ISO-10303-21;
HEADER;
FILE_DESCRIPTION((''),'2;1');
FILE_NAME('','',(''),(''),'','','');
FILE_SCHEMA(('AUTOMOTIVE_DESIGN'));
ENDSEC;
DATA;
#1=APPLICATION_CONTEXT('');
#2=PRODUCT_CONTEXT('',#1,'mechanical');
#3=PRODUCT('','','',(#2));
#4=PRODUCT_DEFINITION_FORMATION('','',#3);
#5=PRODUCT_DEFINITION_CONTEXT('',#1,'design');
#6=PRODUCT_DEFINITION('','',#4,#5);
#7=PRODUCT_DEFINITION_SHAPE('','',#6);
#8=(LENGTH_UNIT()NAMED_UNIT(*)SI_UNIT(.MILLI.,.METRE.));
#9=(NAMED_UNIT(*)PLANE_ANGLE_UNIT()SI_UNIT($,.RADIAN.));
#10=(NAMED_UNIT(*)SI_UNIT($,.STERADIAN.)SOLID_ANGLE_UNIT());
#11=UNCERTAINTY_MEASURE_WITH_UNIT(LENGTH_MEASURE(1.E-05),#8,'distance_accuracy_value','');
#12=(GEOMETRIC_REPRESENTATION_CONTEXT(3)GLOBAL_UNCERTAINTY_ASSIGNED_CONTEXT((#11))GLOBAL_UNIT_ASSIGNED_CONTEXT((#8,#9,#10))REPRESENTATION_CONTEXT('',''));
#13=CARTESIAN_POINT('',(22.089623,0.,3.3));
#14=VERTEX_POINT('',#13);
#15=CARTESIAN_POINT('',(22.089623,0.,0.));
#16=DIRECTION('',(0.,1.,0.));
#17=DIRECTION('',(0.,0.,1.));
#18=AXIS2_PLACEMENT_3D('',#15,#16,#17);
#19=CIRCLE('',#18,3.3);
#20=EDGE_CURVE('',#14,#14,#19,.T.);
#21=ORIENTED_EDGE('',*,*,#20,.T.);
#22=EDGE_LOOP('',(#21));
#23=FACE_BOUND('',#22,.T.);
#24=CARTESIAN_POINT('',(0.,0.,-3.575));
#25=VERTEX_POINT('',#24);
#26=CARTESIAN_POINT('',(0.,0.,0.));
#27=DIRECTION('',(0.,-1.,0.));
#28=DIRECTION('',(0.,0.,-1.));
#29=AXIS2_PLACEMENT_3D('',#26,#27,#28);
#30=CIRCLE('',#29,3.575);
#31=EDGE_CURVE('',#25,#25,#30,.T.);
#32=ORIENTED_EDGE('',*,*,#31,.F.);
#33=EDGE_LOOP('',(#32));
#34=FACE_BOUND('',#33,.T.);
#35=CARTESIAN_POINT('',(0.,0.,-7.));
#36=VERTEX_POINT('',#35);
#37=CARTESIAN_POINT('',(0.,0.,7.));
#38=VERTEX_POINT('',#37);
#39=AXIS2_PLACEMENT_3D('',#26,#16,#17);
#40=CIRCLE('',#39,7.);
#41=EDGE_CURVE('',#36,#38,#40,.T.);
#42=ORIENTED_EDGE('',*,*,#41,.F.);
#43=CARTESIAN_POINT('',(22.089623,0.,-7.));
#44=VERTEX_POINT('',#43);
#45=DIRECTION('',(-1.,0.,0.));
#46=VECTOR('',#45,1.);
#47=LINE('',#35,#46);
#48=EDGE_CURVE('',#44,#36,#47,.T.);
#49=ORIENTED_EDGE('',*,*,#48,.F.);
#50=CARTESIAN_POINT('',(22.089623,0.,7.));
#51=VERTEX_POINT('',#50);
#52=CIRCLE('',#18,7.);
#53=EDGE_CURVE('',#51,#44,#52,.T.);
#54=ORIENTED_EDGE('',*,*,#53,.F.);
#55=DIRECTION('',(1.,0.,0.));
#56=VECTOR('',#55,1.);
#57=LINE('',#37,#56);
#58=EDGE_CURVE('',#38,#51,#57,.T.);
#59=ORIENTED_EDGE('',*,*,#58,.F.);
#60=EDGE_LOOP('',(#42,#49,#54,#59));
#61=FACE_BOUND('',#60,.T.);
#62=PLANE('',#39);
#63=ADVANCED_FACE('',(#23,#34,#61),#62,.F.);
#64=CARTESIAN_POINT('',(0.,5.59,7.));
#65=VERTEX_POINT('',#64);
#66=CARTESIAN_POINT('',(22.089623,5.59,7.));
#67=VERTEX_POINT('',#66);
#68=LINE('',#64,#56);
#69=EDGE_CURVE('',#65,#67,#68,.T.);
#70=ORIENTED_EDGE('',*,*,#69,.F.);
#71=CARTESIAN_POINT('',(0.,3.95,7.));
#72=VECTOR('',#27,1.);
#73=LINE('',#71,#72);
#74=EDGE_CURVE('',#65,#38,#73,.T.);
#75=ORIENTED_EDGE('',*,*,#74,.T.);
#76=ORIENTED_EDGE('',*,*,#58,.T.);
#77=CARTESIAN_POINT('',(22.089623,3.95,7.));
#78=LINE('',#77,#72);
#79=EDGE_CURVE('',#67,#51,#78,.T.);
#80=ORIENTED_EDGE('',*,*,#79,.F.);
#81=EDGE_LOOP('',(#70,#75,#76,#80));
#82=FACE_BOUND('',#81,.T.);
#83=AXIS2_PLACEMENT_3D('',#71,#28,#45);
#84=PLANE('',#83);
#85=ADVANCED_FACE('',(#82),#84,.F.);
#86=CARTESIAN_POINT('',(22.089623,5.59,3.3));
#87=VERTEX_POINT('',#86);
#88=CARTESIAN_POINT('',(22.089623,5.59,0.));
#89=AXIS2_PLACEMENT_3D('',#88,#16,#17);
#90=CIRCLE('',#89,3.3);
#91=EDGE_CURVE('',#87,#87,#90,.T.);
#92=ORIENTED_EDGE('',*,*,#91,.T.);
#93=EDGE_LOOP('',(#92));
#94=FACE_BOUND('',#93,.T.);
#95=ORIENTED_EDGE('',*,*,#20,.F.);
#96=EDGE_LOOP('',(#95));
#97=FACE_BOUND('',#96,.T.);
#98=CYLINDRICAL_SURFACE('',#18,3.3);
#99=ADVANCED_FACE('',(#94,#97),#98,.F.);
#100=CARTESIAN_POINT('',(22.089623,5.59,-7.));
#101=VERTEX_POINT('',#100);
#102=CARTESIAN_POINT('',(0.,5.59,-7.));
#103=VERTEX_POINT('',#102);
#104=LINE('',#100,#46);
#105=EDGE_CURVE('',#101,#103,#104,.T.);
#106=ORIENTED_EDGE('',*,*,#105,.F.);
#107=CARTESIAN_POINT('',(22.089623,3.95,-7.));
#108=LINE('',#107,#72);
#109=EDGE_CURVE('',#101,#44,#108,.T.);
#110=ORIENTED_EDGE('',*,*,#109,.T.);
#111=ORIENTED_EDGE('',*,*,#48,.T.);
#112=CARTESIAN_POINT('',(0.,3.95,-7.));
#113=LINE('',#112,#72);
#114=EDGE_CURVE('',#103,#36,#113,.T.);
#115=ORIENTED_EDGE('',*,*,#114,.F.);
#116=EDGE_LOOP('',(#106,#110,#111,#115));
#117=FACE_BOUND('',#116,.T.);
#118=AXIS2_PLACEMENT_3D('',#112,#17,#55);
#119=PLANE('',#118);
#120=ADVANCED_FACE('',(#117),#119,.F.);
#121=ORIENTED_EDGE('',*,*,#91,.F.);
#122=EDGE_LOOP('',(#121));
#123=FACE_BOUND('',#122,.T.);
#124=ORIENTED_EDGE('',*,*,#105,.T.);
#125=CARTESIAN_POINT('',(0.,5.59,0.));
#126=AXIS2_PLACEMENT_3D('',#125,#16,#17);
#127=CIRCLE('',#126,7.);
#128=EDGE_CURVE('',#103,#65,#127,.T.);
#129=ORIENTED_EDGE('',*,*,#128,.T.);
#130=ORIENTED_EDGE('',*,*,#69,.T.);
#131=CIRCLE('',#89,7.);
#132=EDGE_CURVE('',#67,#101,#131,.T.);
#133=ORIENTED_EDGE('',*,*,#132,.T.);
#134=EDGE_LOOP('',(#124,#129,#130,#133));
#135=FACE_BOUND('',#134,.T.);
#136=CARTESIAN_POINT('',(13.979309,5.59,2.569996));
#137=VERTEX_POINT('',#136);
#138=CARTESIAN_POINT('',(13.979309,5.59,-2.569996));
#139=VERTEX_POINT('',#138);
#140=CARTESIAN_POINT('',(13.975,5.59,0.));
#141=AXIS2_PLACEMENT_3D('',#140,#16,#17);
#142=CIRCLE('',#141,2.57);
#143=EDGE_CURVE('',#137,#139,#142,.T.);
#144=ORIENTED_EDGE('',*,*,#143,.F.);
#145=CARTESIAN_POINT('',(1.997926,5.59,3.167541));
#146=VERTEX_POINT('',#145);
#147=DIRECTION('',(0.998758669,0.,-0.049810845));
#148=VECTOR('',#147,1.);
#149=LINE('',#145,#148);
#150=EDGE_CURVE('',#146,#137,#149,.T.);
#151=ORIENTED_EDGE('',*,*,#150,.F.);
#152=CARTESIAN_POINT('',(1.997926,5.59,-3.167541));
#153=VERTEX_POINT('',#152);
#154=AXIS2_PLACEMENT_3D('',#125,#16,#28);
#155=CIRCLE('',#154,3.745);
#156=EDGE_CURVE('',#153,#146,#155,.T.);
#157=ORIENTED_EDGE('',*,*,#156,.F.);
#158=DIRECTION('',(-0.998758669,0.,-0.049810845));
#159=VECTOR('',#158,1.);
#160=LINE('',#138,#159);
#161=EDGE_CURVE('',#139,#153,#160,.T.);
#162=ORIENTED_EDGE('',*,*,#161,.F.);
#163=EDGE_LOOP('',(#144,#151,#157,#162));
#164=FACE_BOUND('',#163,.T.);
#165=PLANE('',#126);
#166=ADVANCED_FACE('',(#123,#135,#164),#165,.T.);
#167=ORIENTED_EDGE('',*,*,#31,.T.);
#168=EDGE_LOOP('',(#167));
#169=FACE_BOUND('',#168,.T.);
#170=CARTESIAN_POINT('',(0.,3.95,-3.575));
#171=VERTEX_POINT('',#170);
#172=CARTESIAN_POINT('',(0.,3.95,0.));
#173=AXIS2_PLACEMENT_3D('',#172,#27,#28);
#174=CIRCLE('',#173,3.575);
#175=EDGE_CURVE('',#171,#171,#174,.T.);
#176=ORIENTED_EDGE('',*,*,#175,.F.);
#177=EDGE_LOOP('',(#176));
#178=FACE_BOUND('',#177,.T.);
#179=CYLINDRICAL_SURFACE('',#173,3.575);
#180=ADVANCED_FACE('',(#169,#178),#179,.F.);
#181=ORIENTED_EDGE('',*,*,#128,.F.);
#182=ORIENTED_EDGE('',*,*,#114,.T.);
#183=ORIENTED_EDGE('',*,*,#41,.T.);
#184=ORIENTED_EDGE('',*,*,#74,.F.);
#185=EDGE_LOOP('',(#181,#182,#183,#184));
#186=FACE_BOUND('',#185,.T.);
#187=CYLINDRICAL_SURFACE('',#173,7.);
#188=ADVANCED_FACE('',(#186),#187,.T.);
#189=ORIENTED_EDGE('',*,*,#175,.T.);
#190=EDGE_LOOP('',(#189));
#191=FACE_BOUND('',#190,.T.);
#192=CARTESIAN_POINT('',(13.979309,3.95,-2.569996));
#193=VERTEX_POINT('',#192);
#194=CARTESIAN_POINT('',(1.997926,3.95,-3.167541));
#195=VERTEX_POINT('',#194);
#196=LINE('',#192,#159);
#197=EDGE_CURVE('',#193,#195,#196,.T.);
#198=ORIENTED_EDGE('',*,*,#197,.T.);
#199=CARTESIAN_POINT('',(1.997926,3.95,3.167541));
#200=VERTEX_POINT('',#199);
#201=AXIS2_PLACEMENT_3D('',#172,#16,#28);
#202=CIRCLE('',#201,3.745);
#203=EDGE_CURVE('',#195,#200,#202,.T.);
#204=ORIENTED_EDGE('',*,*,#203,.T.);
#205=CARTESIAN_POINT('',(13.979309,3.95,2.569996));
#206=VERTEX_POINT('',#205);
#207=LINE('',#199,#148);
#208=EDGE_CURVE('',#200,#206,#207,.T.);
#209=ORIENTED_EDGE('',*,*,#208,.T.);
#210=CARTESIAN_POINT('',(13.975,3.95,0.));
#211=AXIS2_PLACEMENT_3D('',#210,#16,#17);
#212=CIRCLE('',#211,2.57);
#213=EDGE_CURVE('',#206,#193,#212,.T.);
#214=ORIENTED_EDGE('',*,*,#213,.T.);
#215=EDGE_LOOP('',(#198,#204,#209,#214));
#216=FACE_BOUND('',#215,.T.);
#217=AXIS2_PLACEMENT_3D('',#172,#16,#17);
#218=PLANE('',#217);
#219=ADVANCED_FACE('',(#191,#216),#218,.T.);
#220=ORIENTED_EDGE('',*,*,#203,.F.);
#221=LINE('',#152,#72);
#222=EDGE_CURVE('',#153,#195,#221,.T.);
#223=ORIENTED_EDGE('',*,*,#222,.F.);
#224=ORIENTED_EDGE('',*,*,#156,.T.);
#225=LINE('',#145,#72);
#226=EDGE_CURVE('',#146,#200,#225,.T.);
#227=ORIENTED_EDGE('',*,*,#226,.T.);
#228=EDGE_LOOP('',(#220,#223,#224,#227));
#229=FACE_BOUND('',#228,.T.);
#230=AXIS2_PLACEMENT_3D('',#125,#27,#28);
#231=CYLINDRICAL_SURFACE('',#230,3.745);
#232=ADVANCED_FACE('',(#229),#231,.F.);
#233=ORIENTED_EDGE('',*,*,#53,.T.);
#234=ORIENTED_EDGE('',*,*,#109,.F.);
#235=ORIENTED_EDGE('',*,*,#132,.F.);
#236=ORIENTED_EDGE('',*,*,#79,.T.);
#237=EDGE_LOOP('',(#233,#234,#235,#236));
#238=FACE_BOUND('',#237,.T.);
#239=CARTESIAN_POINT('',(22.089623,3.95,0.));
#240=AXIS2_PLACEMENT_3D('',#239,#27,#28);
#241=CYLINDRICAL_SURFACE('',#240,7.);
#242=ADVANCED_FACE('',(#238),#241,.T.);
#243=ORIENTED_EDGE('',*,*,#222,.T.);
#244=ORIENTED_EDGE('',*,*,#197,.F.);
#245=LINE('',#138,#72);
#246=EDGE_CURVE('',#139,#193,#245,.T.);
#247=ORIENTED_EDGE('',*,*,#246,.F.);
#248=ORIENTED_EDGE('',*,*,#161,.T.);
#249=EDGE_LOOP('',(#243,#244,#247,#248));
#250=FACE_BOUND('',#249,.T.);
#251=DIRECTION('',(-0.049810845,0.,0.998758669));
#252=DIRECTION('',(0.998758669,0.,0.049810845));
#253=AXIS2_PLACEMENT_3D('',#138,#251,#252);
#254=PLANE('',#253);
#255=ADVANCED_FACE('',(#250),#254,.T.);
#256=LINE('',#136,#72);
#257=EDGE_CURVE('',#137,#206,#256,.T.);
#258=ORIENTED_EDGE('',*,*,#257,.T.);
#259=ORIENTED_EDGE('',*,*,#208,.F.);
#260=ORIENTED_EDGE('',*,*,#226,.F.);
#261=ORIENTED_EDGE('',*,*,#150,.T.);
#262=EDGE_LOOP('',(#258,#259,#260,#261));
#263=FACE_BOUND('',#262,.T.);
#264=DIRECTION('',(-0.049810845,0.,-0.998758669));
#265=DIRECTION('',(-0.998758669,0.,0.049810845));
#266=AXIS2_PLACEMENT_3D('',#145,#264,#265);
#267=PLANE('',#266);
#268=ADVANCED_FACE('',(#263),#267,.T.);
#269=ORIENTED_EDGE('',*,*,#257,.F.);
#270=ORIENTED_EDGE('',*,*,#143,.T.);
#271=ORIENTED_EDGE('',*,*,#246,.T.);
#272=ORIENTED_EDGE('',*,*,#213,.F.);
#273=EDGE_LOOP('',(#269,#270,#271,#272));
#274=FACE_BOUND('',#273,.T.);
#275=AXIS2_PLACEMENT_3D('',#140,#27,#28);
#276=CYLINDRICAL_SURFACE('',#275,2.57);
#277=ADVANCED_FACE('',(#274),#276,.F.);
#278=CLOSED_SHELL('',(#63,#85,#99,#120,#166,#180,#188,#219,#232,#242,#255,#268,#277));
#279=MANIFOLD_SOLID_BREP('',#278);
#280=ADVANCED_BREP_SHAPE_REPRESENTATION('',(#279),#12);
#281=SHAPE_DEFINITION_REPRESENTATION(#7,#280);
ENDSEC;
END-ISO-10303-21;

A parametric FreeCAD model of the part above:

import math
import FreeCAD as App
import Part
import Sketcher
Q = App.Units.Quantity

doc = App.newDocument("Part")
body = doc.addObject("PartDesign::Body", "Body")

# Sketch on XZ plane
sketch1 = body.newObject("Sketcher::SketchObject", "Sketch")
sketch1.AttachmentSupport = (doc.getObject("XZ_Plane"), [""])
sketch1.MapMode = "FlatFace"
sketch1.addGeometry([
    Part.LineSegment(App.Vector(22, -7, 0), App.Vector(0, -7, 0)),
    Part.ArcOfCircle(Part.Circle(App.Vector(0, 0, 0), App.Vector(0, 0, 1), 7), math.radians(90), math.radians(270)),
    Part.LineSegment(App.Vector(0, 7, 0), App.Vector(22, 7, 0)),
    Part.ArcOfCircle(Part.Circle(App.Vector(22, 0, 0), App.Vector(0, 0, 1), 7), math.radians(-90), math.radians(90)),
], False)
sketch1.addConstraint([
    Sketcher.Constraint("Tangent", 0, 2, 1, 2),
    Sketcher.Constraint("Tangent", 1, 1, 2, 1),
    Sketcher.Constraint("Tangent", 2, 2, 3, 2),
    Sketcher.Constraint("Tangent", 3, 1, 0, 1),
    Sketcher.Constraint("Horizontal", 0),
    Sketcher.Constraint("Horizontal", 2),
    Sketcher.Constraint("Coincident", 1, 3, -1, 1),
    Sketcher.Constraint("Radius", 1, Q("7 mm")),
    Sketcher.Constraint("DistanceX", 0, 2, 0, 1, Q("22.089623 mm")),
])
pad1 = body.newObject("PartDesign::Pad", "Pad")
pad1.Profile = sketch1
pad1.Length = 3.95
pad1.Reversed = True

# Sketch on XZ plane
sketch2 = body.newObject("Sketcher::SketchObject", "Sketch001")
sketch2.AttachmentSupport = (doc.getObject("XZ_Plane"), [""])
sketch2.MapMode = "FlatFace"
sketch2.addGeometry(Part.Circle(App.Vector(0, 0, 0), App.Vector(0, 0, 1), 3.6), False)
sketch2.addConstraint([
    Sketcher.Constraint("Coincident", 0, 3, -1, 1),
    Sketcher.Constraint("Diameter", 0, Q("7.15 mm")),
])
pocket1 = body.newObject("PartDesign::Pocket", "Pocket")
pocket1.Profile = sketch2
pocket1.Length = 3.95

# Sketch on XZ plane
sketch3 = body.newObject("Sketcher::SketchObject", "Sketch002")
sketch3.AttachmentSupport = (doc.getObject("XZ_Plane"), [""])
sketch3.MapMode = "FlatFace"
sketch3.AttachmentOffset = App.Placement(App.Vector(0, 0, -3.95), App.Rotation())
sketch3.addGeometry([
    Part.LineSegment(App.Vector(0, 7, 0), App.Vector(22.1, 7, 0)),  # 0
    Part.ArcOfCircle(Part.Circle(App.Vector(22.1, 0, 0), App.Vector(0, 0, 1), 7), math.radians(-90), math.radians(90)),  # 1
    Part.LineSegment(App.Vector(22.1, -7, 0), App.Vector(0, -7, 0)),  # 2
    Part.ArcOfCircle(Part.Circle(App.Vector(0, 0, 0), App.Vector(0, 0, 1), 7), math.radians(90), math.radians(270)),  # 3
    Part.LineSegment(App.Vector(2, -3.2, 0), App.Vector(14, -2.6, 0)),  # 4
    Part.ArcOfCircle(Part.Circle(App.Vector(14, 0, 0), App.Vector(0, 0, 1), 2.6), math.radians(-90), math.radians(90)),  # 5
    Part.LineSegment(App.Vector(14, 2.6, 0), App.Vector(2, 3.2, 0)),  # 6
    Part.ArcOfCircle(Part.Circle(App.Vector(0, 0, 0), App.Vector(0, 0, 1), 3.7), math.radians(58), math.radians(302)),  # 7
], False)
sketch3.addConstraint([
    Sketcher.Constraint("Tangent", 0, 2, 1, 2),
    Sketcher.Constraint("Tangent", 1, 1, 2, 1),
    Sketcher.Constraint("Tangent", 2, 2, 3, 2),
    Sketcher.Constraint("Tangent", 3, 1, 0, 1),
    Sketcher.Constraint("Coincident", 4, 2, 5, 1),
    Sketcher.Constraint("Coincident", 5, 2, 6, 1),
    Sketcher.Constraint("Coincident", 6, 2, 7, 1),
    Sketcher.Constraint("Coincident", 7, 2, 4, 1),
    Sketcher.Constraint("Horizontal", 0),
    Sketcher.Constraint("Horizontal", 2),
    Sketcher.Constraint("Coincident", 3, 3, -1, 1),
    Sketcher.Constraint("Coincident", 7, 3, -1, 1),
    Sketcher.Constraint("Symmetric", 4, 2, 5, 2, -1),
    Sketcher.Constraint("Vertical", 6, 2, 7, 2),
    Sketcher.Constraint("Radius", 1, Q("7 mm")),
    Sketcher.Constraint("Radius", 5, Q("2.57 mm")),
    Sketcher.Constraint("Radius", 7, Q("3.745 mm")),
    Sketcher.Constraint("DistanceX", -1, 1, 5, 3, Q("13.975 mm")),
    Sketcher.Constraint("DistanceX", 0, 1, 0, 2, Q("22.089623 mm")),
    Sketcher.Constraint("DistanceX", -1, 1, 4, 2, Q("13.979309 mm")),
    Sketcher.Constraint("DistanceY", -1, 1, 6, 2, Q("3.167541 mm")),
])
pad2 = body.newObject("PartDesign::Pad", "Pad001")
pad2.Profile = sketch3
pad2.Length = 1.64
pad2.Reversed = True

# Sketch on XZ plane
sketch4 = body.newObject("Sketcher::SketchObject", "Sketch003")
sketch4.AttachmentSupport = (doc.getObject("XZ_Plane"), [""])
sketch4.MapMode = "FlatFace"
sketch4.AttachmentOffset = App.Placement(App.Vector(0, 0, -5.59), App.Rotation())
sketch4.addGeometry(Part.Circle(App.Vector(22.1, 0, 0), App.Vector(0, 0, 1), 3.3), False)
sketch4.addConstraint([
    Sketcher.Constraint("PointOnObject", 0, 3, -1),
    Sketcher.Constraint("Diameter", 0, Q("6.6 mm")),
    Sketcher.Constraint("DistanceX", -1, 1, 0, 3, Q("22.089623 mm")),
])
pocket2 = body.newObject("PartDesign::Pocket", "Pocket001")
pocket2.Profile = sketch4
pocket2.Type = "ThroughAll"
pocket2.Reversed = True

doc.recompute()
